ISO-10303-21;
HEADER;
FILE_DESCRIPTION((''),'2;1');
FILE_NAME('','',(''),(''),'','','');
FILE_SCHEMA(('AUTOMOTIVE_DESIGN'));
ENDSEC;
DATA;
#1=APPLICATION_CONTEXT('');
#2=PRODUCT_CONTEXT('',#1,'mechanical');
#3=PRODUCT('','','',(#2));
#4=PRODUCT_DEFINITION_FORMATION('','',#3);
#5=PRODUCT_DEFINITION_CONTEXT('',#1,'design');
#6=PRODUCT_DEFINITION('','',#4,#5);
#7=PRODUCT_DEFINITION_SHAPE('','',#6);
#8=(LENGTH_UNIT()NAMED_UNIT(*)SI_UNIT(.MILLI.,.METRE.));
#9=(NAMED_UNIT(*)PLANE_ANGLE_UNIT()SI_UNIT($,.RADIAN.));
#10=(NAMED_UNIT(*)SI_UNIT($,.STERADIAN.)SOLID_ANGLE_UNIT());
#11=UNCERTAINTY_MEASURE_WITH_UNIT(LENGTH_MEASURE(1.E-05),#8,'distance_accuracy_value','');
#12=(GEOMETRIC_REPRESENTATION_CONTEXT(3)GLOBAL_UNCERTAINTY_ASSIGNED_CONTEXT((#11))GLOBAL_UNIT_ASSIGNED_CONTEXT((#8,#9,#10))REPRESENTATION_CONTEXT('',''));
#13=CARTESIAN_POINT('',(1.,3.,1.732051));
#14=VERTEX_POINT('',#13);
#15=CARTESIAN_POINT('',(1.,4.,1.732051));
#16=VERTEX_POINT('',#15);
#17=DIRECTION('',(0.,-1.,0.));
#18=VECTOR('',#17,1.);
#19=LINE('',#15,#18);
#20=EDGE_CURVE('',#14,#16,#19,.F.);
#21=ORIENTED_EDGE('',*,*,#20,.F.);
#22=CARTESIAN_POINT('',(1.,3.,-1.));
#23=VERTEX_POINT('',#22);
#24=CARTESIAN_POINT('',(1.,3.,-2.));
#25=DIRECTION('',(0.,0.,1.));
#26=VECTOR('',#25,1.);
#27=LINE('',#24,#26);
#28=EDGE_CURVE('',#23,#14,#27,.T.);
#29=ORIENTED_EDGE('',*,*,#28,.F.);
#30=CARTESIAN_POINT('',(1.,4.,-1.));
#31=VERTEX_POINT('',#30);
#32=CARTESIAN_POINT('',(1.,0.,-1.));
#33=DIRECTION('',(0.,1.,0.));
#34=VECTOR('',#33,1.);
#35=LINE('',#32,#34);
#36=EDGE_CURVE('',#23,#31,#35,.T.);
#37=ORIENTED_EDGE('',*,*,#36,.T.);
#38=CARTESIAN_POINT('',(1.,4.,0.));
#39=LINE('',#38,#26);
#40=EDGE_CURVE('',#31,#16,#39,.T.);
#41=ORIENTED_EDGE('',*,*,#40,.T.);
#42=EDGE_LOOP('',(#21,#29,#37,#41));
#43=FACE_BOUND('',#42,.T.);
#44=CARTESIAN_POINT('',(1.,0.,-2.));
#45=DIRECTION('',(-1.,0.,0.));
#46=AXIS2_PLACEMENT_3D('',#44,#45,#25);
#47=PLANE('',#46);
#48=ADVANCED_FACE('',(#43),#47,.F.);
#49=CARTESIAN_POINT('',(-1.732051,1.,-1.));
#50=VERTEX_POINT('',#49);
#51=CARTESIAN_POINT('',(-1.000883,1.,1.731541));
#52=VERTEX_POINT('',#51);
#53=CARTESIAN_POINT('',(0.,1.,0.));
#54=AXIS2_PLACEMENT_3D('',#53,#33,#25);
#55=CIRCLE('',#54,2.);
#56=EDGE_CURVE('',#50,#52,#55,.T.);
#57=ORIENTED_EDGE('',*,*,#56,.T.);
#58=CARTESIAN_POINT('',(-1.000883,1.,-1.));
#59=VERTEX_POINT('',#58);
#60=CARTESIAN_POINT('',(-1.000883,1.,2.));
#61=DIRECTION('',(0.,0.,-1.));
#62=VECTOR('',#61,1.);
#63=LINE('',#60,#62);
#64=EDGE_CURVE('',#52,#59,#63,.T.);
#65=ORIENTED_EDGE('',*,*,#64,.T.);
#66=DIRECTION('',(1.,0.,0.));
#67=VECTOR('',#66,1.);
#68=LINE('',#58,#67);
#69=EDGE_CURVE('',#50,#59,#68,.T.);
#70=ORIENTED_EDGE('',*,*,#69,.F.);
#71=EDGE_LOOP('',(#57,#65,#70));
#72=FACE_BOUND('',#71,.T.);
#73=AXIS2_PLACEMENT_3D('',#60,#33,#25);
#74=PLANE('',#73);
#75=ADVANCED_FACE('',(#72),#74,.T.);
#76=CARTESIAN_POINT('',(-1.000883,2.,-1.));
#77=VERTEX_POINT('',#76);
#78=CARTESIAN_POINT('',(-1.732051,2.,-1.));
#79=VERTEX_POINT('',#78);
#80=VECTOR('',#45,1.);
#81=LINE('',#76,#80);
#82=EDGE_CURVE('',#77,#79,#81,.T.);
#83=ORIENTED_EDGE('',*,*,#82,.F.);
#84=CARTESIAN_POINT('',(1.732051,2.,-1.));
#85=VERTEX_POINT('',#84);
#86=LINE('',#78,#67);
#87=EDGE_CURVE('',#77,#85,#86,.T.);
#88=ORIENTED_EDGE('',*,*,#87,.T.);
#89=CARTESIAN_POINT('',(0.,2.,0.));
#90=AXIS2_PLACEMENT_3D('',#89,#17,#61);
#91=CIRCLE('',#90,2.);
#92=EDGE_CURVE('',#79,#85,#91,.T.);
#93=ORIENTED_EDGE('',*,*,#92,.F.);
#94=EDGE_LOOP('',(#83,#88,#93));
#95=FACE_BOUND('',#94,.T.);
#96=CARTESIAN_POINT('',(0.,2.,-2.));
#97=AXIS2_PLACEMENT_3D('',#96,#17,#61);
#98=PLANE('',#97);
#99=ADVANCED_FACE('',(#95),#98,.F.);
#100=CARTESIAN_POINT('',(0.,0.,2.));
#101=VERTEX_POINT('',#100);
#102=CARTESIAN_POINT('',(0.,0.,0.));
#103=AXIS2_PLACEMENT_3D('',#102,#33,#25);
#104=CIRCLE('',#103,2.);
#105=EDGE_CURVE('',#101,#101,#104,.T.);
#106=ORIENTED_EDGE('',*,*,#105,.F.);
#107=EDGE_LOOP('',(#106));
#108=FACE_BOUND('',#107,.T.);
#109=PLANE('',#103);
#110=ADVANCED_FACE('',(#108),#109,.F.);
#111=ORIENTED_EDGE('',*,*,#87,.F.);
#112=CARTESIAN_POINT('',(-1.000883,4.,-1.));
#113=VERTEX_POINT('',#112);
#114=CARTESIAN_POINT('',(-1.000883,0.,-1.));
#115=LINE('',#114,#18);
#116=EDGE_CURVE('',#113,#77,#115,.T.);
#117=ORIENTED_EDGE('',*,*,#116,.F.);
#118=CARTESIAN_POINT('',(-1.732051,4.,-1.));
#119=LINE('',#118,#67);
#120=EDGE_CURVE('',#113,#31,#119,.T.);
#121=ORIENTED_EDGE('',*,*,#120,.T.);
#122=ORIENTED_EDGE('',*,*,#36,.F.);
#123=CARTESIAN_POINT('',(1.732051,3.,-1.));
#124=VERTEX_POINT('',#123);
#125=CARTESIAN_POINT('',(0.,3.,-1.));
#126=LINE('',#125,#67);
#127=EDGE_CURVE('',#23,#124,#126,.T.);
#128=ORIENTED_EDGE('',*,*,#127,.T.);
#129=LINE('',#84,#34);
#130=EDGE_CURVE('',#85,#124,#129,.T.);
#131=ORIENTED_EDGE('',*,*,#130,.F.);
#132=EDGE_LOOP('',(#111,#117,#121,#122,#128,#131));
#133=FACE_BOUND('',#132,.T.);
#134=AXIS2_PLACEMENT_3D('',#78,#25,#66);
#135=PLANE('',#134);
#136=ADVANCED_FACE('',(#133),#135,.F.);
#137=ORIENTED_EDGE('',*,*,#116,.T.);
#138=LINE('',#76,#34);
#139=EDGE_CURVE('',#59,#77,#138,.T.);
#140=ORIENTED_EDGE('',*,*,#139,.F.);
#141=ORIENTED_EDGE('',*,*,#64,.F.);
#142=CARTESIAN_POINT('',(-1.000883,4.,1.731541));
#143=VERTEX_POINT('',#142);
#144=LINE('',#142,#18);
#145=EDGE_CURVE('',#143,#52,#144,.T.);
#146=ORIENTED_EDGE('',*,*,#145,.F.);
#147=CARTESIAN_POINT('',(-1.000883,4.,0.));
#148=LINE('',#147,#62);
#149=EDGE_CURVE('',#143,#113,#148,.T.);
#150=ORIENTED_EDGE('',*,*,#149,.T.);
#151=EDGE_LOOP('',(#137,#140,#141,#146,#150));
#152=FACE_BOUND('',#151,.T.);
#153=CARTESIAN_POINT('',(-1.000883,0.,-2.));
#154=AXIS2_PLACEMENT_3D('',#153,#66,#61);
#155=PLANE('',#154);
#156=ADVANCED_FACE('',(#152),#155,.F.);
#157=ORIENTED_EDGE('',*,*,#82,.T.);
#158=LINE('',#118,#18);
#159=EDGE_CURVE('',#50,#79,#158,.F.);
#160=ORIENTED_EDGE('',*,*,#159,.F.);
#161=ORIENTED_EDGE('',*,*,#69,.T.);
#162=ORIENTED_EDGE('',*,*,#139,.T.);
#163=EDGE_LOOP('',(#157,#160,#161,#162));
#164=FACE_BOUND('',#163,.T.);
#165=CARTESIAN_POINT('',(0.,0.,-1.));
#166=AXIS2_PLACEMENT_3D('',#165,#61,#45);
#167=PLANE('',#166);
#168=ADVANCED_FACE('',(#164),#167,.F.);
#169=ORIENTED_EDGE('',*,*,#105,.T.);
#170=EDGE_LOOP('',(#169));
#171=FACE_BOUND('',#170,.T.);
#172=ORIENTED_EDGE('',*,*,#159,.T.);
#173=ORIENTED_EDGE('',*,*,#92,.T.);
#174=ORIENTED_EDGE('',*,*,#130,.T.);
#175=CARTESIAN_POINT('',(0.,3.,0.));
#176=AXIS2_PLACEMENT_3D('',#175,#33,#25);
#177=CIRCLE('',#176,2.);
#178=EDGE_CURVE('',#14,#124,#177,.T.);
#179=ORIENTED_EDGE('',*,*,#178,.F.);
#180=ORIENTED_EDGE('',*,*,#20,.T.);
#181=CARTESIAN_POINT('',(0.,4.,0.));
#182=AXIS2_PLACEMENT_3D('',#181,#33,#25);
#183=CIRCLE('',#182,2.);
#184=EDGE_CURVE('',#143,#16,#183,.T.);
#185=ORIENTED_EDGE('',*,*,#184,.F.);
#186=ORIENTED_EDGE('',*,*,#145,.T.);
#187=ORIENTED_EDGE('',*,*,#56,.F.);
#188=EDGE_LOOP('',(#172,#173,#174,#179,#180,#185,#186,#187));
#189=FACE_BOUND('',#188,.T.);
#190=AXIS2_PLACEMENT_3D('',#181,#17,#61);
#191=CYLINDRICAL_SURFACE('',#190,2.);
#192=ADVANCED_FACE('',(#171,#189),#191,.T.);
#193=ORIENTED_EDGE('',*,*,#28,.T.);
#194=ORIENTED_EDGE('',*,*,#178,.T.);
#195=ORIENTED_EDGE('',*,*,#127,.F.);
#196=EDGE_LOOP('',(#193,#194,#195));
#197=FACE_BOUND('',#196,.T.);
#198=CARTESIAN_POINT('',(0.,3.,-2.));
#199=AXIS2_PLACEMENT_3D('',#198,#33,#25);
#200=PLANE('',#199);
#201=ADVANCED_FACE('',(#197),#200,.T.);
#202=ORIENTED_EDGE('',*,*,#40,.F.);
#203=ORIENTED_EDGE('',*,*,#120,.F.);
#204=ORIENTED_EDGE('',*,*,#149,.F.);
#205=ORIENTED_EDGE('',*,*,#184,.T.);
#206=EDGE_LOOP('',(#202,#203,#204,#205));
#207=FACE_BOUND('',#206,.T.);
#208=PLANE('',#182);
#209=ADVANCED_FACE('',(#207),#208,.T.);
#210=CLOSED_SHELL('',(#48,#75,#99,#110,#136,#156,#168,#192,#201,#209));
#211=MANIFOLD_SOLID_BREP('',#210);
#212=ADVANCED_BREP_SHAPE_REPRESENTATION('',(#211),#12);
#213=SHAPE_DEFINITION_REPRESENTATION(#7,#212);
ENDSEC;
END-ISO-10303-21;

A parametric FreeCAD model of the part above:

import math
import FreeCAD as App
import Part
import Sketcher

V = App.Vector


def add_polygon(sketch, points):
    """Adds a closed chain of lines whose ends are joined by coincident constraints."""
    first, n = sketch.GeometryCount, len(points)
    for a, b in zip(points, points[1:] + points[:1]):
        sketch.addGeometry(Part.LineSegment(App.Vector(*a, 0), App.Vector(*b, 0)), False)
    for i in range(n):
        sketch.addConstraint(Sketcher.Constraint("Coincident", first + i, 2, first + (i + 1) % n, 1))

doc = App.newDocument("Part")
body = doc.addObject("PartDesign::Body", "Body")

# Sketch on XZ plane
sketch1 = doc.addObject("Sketcher::SketchObject", "Sketch")
body.addObject(sketch1)
sketch1.AttachmentSupport = (doc.XZ_Plane, [""])
sketch1.MapMode = "FlatFace"
sketch1.addGeometry(Part.Circle(V(0, 0, 0), V(0, 0, 1), 2), False)
sketch1.addConstraint([
    Sketcher.Constraint("Coincident", 0, 3, -1, 1),
    Sketcher.Constraint("Diameter", 0, 4.0),
])
pad1 = doc.addObject("PartDesign::Pad", "Pad")
body.addObject(pad1)
pad1.Profile = sketch1
pad1.Length = 4
pad1.Reversed = True

# Sketch on XY plane
sketch2 = doc.addObject("Sketcher::SketchObject", "Sketch001")
body.addObject(sketch2)
sketch2.AttachmentSupport = (doc.XY_Plane, [""])
sketch2.MapMode = "FlatFace"
add_polygon(sketch2, [(-1.000883, 4), (-2, 4), (-2, 2), (-1.000883, 2)])  # lines 0-3
add_polygon(sketch2, [(1, 4), (1, 3), (2, 3), (2, 4)])  # lines 4-7
sketch2.addConstraint([
    Sketcher.Constraint("Horizontal", 0),
    Sketcher.Constraint("Vertical", 1),
    Sketcher.Constraint("Horizontal", 2),
    Sketcher.Constraint("Vertical", 3),
    Sketcher.Constraint("Vertical", 4),
    Sketcher.Constraint("Horizontal", 5),
    Sketcher.Constraint("Vertical", 6),
    Sketcher.Constraint("Horizontal", 7),
    Sketcher.Constraint("Symmetric", 0, 2, 6, 2, -2),
    Sketcher.Constraint("Equal", 7, 4),
    Sketcher.Constraint("DistanceX", 5, 1, 5, 2, 1.0),
    Sketcher.Constraint("DistanceY", 1, 2, 1, 1, 2.0),
    Sketcher.Constraint("DistanceX", 0, 2, -1, 1, 2.0),
    Sketcher.Constraint("DistanceY", -1, 1, 0, 2, 4.0),
    Sketcher.Constraint("DistanceX", 0, 2, 0, 1, 0.999117),
])
pocket1 = doc.addObject("PartDesign::Pocket", "Pocket")
body.addObject(pocket1)
pocket1.Profile = sketch2
pocket1.Length = 4
pocket1.Midplane = True

# Sketch on XZ plane
sketch3 = doc.addObject("Sketcher::SketchObject", "Sketch002")
body.addObject(sketch3)
sketch3.AttachmentSupport = (doc.XZ_Plane, [""])
sketch3.MapMode = "FlatFace"
sketch3.AttachmentOffset = App.Placement(V(0, 0, -4), App.Rotation())
sketch3.addGeometry([
    Part.LineSegment(V(-1.732051, -1, 0), V(1.732051, -1, 0)),
    Part.ArcOfCircle(Part.Circle(V(0, 0, 0), V(0, 0, 1), 2), math.radians(-150), math.radians(-30)),
], False)
sketch3.addConstraint([
    Sketcher.Constraint("Coincident", 0, 1, 1, 1),
    Sketcher.Constraint("Coincident", 1, 2, 0, 2),
    Sketcher.Constraint("Horizontal", 0),
    Sketcher.Constraint("Coincident", 1, 3, -1, 1),
    Sketcher.Constraint("Radius", 1, 2.0),
    Sketcher.Constraint("DistanceY", 0, 1, -1, 1, 1.0),
])
pocket2 = doc.addObject("PartDesign::Pocket", "Pocket001")
body.addObject(pocket2)
pocket2.Profile = sketch3
pocket2.Length = 2
pocket2.Reversed = True

# Sketch on XY plane
sketch4 = doc.addObject("Sketcher::SketchObject", "Sketch003")
body.addObject(sketch4)
sketch4.AttachmentSupport = (doc.XY_Plane, [""])
sketch4.MapMode = "FlatFace"
add_polygon(sketch4, [(-2, 2), (-2, 1), (-1.000883, 1), (-1.000883, 2)])  # lines 0-3
sketch4.addConstraint([
    Sketcher.Constraint("Vertical", 0),
    Sketcher.Constraint("Horizontal", 1),
    Sketcher.Constraint("Vertical", 2),
    Sketcher.Constraint("Horizontal", 3),
    Sketcher.Constraint("DistanceY", 0, 2, 0, 1, 1.0),
    Sketcher.Constraint("DistanceX", 0, 2, -1, 1, 2.0),
    Sketcher.Constraint("DistanceY", -1, 1, 0, 2, 1.0),
    Sketcher.Constraint("DistanceX", 1, 1, 1, 2, 0.999117),
])
pocket3 = doc.addObject("PartDesign::Pocket", "Pocket002")
body.addObject(pocket3)
pocket3.Profile = sketch4
pocket3.Type = "TwoLengths"
pocket3.Length = 2
pocket3.Length2 = 1
pocket3.Reversed = True

doc.recompute()
